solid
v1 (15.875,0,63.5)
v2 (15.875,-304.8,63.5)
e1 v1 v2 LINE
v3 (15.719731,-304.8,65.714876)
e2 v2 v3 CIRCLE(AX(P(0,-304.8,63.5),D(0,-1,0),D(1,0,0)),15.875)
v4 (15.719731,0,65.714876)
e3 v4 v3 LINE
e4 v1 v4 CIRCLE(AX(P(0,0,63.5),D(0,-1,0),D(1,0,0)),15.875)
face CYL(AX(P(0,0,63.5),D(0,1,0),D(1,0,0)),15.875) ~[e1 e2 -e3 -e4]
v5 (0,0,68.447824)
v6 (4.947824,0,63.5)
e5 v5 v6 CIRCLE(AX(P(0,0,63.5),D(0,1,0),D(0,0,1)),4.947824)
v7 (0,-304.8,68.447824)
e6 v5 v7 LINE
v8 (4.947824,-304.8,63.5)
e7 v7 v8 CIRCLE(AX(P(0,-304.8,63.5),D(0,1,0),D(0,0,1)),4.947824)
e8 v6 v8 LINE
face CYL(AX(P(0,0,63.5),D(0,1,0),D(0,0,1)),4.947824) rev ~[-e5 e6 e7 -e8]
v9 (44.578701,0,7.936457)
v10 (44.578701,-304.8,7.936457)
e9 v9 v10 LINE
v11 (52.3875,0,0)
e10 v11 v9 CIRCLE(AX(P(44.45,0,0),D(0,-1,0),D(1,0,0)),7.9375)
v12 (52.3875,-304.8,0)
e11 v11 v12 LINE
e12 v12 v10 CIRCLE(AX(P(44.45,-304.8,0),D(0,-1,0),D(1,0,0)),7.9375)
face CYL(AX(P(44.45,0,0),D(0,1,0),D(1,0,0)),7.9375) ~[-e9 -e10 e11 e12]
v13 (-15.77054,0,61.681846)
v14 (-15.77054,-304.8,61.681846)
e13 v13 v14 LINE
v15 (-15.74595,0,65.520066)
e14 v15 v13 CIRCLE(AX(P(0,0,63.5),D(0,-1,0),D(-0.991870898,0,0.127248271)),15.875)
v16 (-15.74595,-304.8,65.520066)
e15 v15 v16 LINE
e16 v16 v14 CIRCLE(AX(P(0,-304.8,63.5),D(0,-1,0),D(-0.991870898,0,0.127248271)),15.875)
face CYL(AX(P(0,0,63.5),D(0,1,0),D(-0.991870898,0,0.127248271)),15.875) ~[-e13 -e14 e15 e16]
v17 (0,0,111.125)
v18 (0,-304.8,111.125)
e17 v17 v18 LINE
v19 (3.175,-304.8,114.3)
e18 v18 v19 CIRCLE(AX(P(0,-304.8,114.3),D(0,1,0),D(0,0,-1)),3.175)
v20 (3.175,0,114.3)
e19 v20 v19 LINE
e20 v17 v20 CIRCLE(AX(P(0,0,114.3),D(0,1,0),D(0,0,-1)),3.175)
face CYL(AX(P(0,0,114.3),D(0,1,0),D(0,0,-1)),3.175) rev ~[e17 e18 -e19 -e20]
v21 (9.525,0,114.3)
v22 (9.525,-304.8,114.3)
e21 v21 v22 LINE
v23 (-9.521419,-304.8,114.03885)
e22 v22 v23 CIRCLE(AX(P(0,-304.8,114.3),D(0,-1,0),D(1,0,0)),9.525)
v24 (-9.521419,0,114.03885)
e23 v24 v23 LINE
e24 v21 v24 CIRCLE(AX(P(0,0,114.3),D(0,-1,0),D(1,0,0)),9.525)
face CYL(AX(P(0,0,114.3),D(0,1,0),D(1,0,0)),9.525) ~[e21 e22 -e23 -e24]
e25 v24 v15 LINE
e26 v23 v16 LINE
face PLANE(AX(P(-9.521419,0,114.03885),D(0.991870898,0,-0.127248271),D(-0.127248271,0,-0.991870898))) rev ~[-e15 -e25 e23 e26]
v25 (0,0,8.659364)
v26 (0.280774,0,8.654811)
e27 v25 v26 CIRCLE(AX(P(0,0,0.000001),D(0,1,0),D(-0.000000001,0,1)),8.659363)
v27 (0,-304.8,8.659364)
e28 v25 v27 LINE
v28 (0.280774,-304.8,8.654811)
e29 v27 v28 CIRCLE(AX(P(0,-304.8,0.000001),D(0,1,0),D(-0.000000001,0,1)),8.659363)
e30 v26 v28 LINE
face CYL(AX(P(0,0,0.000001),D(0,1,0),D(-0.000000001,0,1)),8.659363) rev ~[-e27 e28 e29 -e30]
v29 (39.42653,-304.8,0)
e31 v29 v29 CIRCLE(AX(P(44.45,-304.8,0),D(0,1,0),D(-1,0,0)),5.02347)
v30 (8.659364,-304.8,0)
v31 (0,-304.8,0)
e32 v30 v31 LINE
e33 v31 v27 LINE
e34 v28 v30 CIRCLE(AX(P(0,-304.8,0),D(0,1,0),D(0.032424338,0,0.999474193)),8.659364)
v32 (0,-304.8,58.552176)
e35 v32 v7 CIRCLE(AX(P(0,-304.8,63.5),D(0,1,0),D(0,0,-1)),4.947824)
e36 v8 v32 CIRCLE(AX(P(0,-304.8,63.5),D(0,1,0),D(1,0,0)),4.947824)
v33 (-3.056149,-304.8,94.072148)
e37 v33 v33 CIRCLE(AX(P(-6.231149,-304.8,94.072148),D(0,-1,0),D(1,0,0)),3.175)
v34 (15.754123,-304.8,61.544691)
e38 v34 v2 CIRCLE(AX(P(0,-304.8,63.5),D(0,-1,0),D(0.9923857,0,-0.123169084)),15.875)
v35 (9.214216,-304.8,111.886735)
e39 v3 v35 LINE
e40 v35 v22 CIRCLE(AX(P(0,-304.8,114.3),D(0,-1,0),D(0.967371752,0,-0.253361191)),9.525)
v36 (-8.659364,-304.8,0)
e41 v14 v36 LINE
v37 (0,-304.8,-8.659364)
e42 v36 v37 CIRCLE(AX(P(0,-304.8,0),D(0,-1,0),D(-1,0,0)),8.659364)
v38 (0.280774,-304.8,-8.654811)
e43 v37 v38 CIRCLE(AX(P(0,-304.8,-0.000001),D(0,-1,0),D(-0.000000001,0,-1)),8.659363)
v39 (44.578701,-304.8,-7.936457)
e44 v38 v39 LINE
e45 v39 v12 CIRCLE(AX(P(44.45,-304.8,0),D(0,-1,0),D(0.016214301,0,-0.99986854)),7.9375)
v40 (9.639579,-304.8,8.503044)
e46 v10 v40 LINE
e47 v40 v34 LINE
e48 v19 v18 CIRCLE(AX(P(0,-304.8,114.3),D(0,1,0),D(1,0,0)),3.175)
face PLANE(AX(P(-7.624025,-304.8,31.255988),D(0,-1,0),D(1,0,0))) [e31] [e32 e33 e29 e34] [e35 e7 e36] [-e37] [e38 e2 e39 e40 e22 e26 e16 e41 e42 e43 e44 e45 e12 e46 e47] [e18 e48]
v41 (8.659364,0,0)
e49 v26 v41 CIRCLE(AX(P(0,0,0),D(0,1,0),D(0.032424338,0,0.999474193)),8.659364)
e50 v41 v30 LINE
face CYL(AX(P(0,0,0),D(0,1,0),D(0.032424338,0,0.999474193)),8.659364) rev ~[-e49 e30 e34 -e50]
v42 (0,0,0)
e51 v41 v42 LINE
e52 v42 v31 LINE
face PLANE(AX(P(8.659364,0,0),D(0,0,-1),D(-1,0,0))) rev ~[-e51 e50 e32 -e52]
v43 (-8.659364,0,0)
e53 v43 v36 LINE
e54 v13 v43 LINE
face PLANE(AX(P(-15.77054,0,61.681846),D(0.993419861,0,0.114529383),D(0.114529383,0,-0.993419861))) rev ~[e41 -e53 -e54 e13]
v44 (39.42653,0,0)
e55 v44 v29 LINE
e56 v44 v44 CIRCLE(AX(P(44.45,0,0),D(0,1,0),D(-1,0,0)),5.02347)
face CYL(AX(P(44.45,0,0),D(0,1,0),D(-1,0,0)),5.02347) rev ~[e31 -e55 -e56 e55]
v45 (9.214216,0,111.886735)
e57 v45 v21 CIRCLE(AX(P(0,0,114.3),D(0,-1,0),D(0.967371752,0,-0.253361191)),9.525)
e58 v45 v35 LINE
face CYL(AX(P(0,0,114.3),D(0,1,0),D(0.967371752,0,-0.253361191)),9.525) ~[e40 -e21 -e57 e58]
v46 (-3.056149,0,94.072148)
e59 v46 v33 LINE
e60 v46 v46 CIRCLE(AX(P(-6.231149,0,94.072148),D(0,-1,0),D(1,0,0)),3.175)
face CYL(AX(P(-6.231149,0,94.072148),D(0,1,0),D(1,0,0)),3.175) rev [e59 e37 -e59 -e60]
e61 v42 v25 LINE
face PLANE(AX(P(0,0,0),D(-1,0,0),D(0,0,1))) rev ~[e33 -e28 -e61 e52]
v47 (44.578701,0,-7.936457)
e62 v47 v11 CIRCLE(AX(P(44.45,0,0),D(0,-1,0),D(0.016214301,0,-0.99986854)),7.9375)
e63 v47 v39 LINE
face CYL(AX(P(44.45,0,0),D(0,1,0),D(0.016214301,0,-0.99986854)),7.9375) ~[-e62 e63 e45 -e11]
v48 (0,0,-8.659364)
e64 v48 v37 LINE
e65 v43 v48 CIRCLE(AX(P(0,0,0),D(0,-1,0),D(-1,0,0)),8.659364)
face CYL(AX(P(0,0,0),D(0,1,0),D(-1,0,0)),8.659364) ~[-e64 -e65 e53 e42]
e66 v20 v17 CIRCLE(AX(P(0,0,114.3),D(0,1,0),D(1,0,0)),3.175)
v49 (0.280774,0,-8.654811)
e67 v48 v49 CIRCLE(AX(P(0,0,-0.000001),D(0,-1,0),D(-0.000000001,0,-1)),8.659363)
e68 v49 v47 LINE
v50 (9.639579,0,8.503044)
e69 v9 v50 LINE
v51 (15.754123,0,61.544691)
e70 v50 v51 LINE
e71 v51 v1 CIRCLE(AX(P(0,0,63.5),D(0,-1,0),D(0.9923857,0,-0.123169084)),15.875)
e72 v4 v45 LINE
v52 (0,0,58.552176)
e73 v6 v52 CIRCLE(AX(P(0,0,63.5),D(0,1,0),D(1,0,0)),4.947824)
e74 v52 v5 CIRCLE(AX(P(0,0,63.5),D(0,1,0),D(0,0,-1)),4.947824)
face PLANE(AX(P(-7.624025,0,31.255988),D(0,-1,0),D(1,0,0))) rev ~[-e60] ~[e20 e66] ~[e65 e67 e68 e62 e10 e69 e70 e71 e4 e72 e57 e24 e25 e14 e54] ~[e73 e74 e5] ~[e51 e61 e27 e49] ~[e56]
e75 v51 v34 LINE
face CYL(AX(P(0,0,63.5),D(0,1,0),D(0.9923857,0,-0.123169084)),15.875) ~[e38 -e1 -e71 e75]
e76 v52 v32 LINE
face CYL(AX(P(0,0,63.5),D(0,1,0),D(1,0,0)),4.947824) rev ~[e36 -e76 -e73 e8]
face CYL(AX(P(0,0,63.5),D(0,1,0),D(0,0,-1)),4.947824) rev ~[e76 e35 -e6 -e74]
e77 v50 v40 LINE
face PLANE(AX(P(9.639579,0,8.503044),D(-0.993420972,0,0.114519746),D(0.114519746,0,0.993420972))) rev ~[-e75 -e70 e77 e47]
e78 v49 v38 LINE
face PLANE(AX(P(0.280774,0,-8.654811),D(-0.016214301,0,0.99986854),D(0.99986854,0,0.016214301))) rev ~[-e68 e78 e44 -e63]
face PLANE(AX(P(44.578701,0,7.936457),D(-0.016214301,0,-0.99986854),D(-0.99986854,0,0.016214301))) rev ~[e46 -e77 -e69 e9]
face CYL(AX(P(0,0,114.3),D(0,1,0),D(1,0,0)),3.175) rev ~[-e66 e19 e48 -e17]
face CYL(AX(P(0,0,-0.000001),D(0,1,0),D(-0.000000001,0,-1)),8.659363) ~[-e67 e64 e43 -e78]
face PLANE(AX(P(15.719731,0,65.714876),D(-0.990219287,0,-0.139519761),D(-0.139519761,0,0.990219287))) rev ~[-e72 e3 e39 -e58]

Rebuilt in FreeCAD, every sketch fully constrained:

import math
import FreeCAD as App
import Part
import Sketcher
Q = App.Units.Quantity

doc = App.newDocument("Part")
body = doc.addObject("PartDesign::Body", "Body")

# Sketch on XZ plane
sketch1 = body.newObject("Sketcher::SketchObject", "Sketch")
sketch1.AttachmentSupport = (doc.getObject("XZ_Plane"), [""])
sketch1.MapMode = "FlatFace"
sketch1.addGeometry(Part.LineSegment(App.Vector(0.28, -8.65, 0), App.Vector(44.58, -7.94, 0)), False)
sketch1.addGeometry(Part.ArcOfCircle(Part.Circle(App.Vector(44.45, 0, 0), App.Vector(0, 0, 1), 7.94), math.radians(-89), math.radians(0)), False)
sketch1.addGeometry(Part.ArcOfCircle(Part.Circle(App.Vector(44.45, 0, 0), App.Vector(0, 0, 1), 7.94), math.radians(0), math.radians(89)), False)
sketch1.addGeometry(Part.LineSegment(App.Vector(44.58, 7.94, 0), App.Vector(9.64, 8.5, 0)), False)
sketch1.addGeometry(Part.LineSegment(App.Vector(9.64, 8.5, 0), App.Vector(15.75, 61.54, 0)), False)
sketch1.addGeometry(Part.ArcOfCircle(Part.Circle(App.Vector(0, 63.5, 0), App.Vector(0, 0, 1), 15.87), math.radians(-7.08), math.radians(0)), False)
sketch1.addGeometry(Part.ArcOfCircle(Part.Circle(App.Vector(0, 63.5, 0), App.Vector(0, 0, 1), 15.87), math.radians(0), math.radians(8.02)), False)
sketch1.addGeometry(Part.LineSegment(App.Vector(15.72, 65.71, 0), App.Vector(9.21, 111.89, 0)), False)
sketch1.addGeometry(Part.ArcOfCircle(Part.Circle(App.Vector(0, 114.3, 0), App.Vector(0, 0, 1), 9.53), math.radians(-14.68), math.radians(0)), False)
sketch1.addGeometry(Part.ArcOfCircle(Part.Circle(App.Vector(0, 114.3, 0), App.Vector(0, 0, 1), 9.53), math.radians(0), math.radians(182)), False)
sketch1.addGeometry(Part.LineSegment(App.Vector(-9.52, 114.04, 0), App.Vector(-15.75, 65.52, 0)), False)
sketch1.addGeometry(Part.ArcOfCircle(Part.Circle(App.Vector(0, 63.5, 0), App.Vector(0, 0, 1), 15.88), math.radians(172.69), math.radians(186.58)), False)
sketch1.addGeometry(Part.LineSegment(App.Vector(-15.77, 61.68, 0), App.Vector(-8.66, 0, 0)), False)
sketch1.addGeometry(Part.ArcOfCircle(Part.Circle(App.Vector(0, 0, 0), App.Vector(0, 0, 1), 8.66), math.radians(180), math.radians(270)), False)
sketch1.addGeometry(Part.ArcOfCircle(Part.Circle(App.Vector(0, 0, 0), App.Vector(0, 0, 1), 8.66), math.radians(-90), math.radians(-88.14)), False)
sketch1.addGeometry(Part.ArcOfCircle(Part.Circle(App.Vector(0, 0, 0), App.Vector(0, 0, 1), 8.66), math.radians(0), math.radians(88)), False)
sketch1.addGeometry(Part.LineSegment(App.Vector(8.66, 0, 0), App.Vector(0, 0, 0)), False)
sketch1.addGeometry(Part.LineSegment(App.Vector(0, 0, 0), App.Vector(0, 8.66, 0)), False)
sketch1.addGeometry(Part.ArcOfCircle(Part.Circle(App.Vector(0, 0, 0), App.Vector(0, 0, 1), 8.66), math.radians(88.14), math.radians(90)), False)
sketch1.addGeometry(Part.Circle(App.Vector(44.45, 0, 0), App.Vector(0, 0, 1), 5.02), False)
sketch1.addGeometry(Part.ArcOfCircle(Part.Circle(App.Vector(0, 63.5, 0), App.Vector(0, 0, 1), 4.95), math.radians(90), math.radians(270)), False)
sketch1.addGeometry(Part.ArcOfCircle(Part.Circle(App.Vector(0, 63.5, 0), App.Vector(0, 0, 1), 4.95), math.radians(0), math.radians(90)), False)
sketch1.addGeometry(Part.ArcOfCircle(Part.Circle(App.Vector(0, 63.5, 0), App.Vector(0, 0, 1), 4.95), math.radians(-90), math.radians(0)), False)
sketch1.addGeometry(Part.Circle(App.Vector(-6.23, 94.07, 0), App.Vector(0, 0, 1), 3.17), False)
sketch1.addGeometry(Part.ArcOfCircle(Part.Circle(App.Vector(0, 114.3, 0), App.Vector(0, 0, 1), 3.17), math.radians(0), math.radians(270)), False)
sketch1.addGeometry(Part.ArcOfCircle(Part.Circle(App.Vector(0, 114.3, 0), App.Vector(0, 0, 1), 3.17), math.radians(-90), math.radians(0)), False)
sketch1.addConstraint(Sketcher.Constraint("Tangent", 0, 2, 1, 1))
sketch1.addConstraint(Sketcher.Constraint("Tangent", 1, 2, 2, 1))
sketch1.addConstraint(Sketcher.Constraint("Tangent", 2, 2, 3, 1))
sketch1.addConstraint(Sketcher.Constraint("Coincident", 3, 2, 4, 1))
sketch1.addConstraint(Sketcher.Constraint("Coincident", 4, 2, 5, 1))
sketch1.addConstraint(Sketcher.Constraint("Tangent", 5, 2, 6, 1))
sketch1.addConstraint(Sketcher.Constraint("Tangent", 6, 2, 7, 1))
sketch1.addConstraint(Sketcher.Constraint("Coincident", 7, 2, 8, 1))
sketch1.addConstraint(Sketcher.Constraint("Tangent", 8, 2, 9, 1))
sketch1.addConstraint(Sketcher.Constraint("Coincident", 9, 2, 10, 1))
sketch1.addConstraint(Sketcher.Constraint("Tangent", 10, 2, 11, 1))
sketch1.addConstraint(Sketcher.Constraint("Tangent", 11, 2, 12, 1))
sketch1.addConstraint(Sketcher.Constraint("Coincident", 12, 2, 13, 1))
sketch1.addConstraint(Sketcher.Constraint("Tangent", 13, 2, 14, 1))
sketch1.addConstraint(Sketcher.Constraint("Coincident", 14, 2, 0, 1))
sketch1.addConstraint(Sketcher.Constraint("Coincident", 15, 1, 16, 1))
sketch1.addConstraint(Sketcher.Constraint("Coincident", 16, 2, 17, 1))
sketch1.addConstraint(Sketcher.Constraint("Coincident", 17, 2, 18, 2))
sketch1.addConstraint(Sketcher.Constraint("Tangent", 18, 1, 15, 2))
sketch1.addConstraint(Sketcher.Constraint("Tangent", 20, 1, 21, 2))
sketch1.addConstraint(Sketcher.Constraint("Tangent", 21, 1, 22, 2))
sketch1.addConstraint(Sketcher.Constraint("Tangent", 22, 1, 20, 2))
sketch1.addConstraint(Sketcher.Constraint("Tangent", 24, 1, 25, 2))
sketch1.addConstraint(Sketcher.Constraint("Coincident", 25, 1, 24, 2))
sketch1.addConstraint(Sketcher.Constraint("Horizontal", 16))
sketch1.addConstraint(Sketcher.Constraint("Vertical", 17))
sketch1.addConstraint(Sketcher.Constraint("Coincident", 13, 3, -1, 1))
sketch1.addConstraint(Sketcher.Constraint("Coincident", 15, 3, -1, 1))
sketch1.addConstraint(Sketcher.Constraint("Coincident", 16, 2, -1, 1))
sketch1.addConstraint(Sketcher.Constraint("Coincident", 11, 3, 5, 3))
sketch1.addConstraint(Sketcher.Constraint("Coincident", 19, 3, 1, 3))
sketch1.addConstraint(Sketcher.Constraint("Coincident", 20, 3, 5, 3))
sketch1.addConstraint(Sketcher.Constraint("Coincident", 24, 3, 8, 3))
sketch1.addConstraint(Sketcher.Constraint("Equal", 1, 2))
sketch1.addConstraint(Sketcher.Constraint("Equal", 5, 6))
sketch1.addConstraint(Sketcher.Constraint("Equal", 8, 9))
sketch1.addConstraint(Sketcher.Constraint("Equal", 6, 11))
sketch1.addConstraint(Sketcher.Constraint("Equal", 13, 14))
sketch1.addConstraint(Sketcher.Constraint("Equal", 14, 15))
sketch1.addConstraint(Sketcher.Constraint("Equal", 15, 18))
sketch1.addConstraint(Sketcher.Constraint("Equal", 23, 24))
sketch1.addConstraint(Sketcher.Constraint("Symmetric", 0, 2, 2, 2, -1))
sketch1.addConstraint(Sketcher.Constraint("PointOnObject", 5, 3, -2))
sketch1.addConstraint(Sketcher.Constraint("PointOnObject", 8, 3, -2))
sketch1.addConstraint(Sketcher.Constraint("PointOnObject", 1, 2, -1))
sketch1.addConstraint(Sketcher.Constraint("PointOnObject", 12, 2, -1))
sketch1.addConstraint(Sketcher.Constraint("PointOnObject", 13, 2, -2))
sketch1.addConstraint(Sketcher.Constraint("PointOnObject", 20, 1, -2))
sketch1.addConstraint(Sketcher.Constraint("PointOnObject", 22, 1, -2))
sketch1.addConstraint(Sketcher.Constraint("PointOnObject", 25, 1, -2))
sketch1.addConstraint(Sketcher.Constraint("Horizontal", 22, 3, 5, 2))
sketch1.addConstraint(Sketcher.Constraint("Horizontal", 25, 3, 8, 2))
sketch1.addConstraint(Sketcher.Constraint("Horizontal", 5, 2, 21, 1))
sketch1.addConstraint(Sketcher.Constraint("Horizontal", 8, 2, 24, 1))
sketch1.addConstraint(Sketcher.Constraint("Vertical", 14, 2, 18, 1))
sketch1.addConstraint(Sketcher.Constraint("Diameter", 23, Q("0.25 in")))
sketch1.addConstraint(Sketcher.Constraint("Radius", 1, Q("0.3125 in")))
sketch1.addConstraint(Sketcher.Constraint("Radius", 5, Q("0.625 in")))
sketch1.addConstraint(Sketcher.Constraint("Radius", 8, Q("0.375 in")))
sketch1.addConstraint(Sketcher.Constraint("DistanceY", 6, 3, 8, 3, Q("2 in")))
sketch1.addConstraint(Sketcher.Constraint("DistanceY", -1, 1, 5, 3, Q("2.5 in")))
sketch1.addConstraint(Sketcher.Constraint("DistanceX", -1, 1, 1, 3, Q("1.75 in")))
sketch1.addConstraint(Sketcher.Constraint("Diameter", 19, 10.04694))
sketch1.addConstraint(Sketcher.Constraint("DistanceY", -1, 1, 6, 2, Q("2.5871999 in")))
sketch1.addConstraint(Sketcher.Constraint("Radius", 13, 8.659364))
sketch1.addConstraint(Sketcher.Constraint("Radius", 20, 4.947824))
sketch1.addConstraint(Sketcher.Constraint("DistanceX", -1, 1, 0, 2, 44.578701))
sketch1.addConstraint(Sketcher.Constraint("Distance", 4, 53.39292))
sketch1.addConstraint(Sketcher.Constraint("Distance", 10, 48.91643))
sketch1.addConstraint(Sketcher.Constraint("DistanceX", 23, 3, -1, 1, 6.231149))
sketch1.addConstraint(Sketcher.Constraint("DistanceY", -1, 1, 23, 3, 94.072148))
sketch1.addConstraint(Sketcher.Constraint("DistanceX", -1, 1, 3, 2, 9.639579))
pad1 = body.newObject("PartDesign::Pad", "Pad")
pad1.Profile = sketch1
pad1.Length = Q("12 in")

doc.recompute()
